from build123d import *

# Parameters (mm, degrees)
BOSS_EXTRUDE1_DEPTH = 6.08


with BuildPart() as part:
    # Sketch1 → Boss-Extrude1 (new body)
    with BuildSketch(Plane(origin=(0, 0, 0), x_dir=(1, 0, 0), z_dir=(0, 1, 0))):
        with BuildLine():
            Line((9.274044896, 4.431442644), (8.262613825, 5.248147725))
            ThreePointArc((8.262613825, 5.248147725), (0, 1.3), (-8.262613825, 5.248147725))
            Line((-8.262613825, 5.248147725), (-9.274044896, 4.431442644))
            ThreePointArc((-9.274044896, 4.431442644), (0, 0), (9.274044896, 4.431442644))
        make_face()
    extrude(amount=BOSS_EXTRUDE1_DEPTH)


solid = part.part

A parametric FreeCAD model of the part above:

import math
import FreeCAD as App
import Part
import Sketcher
from FreeCAD import Vector
Q = App.Units.Quantity

doc = App.newDocument("Part")
params = doc.addObject("Spreadsheet::Sheet", "Params")
for row, (alias, value) in enumerate([
    ("sketch1_radius", "10.62 mm"),
    ("sketch1_radius2", "11.92 mm"),
    ("pad1_length", "6.08 mm"),
], start=1):
    params.set(f"A{row}", alias)
    params.set(f"B{row}", "=" + value)
    params.setAlias(f"B{row}", alias)

body = doc.addObject("PartDesign::Body", "Body")

# Sketch on XZ plane
sketch1 = body.newObject("Sketcher::SketchObject", "Sketch")
sketch1.AttachmentSupport = (doc.getObject("XZ_Plane"), [""])
sketch1.MapMode = "FlatFace"
sketch1.addGeometry([
    Part.LineSegment(Vector(9.3, -4.4, 0), Vector(8.3, -5.2, 0)),
    Part.ArcOfCircle(Part.Circle(Vector(0, -11.9, 0), Vector(0, 0, 1), 10.6), math.radians(39), math.radians(141)),
    Part.LineSegment(Vector(-8.3, -5.2, 0), Vector(-9.3, -4.4, 0)),
    Part.ArcOfCircle(Part.Circle(Vector(0, -11.9, 0), Vector(0, 0, 1), 11.9), math.radians(39), math.radians(141)),
], False)
sketch1.addConstraint([
    Sketcher.Constraint("Coincident", 0, 2, 1, 1),
    Sketcher.Constraint("Coincident", 1, 2, 2, 1),
    Sketcher.Constraint("Coincident", 2, 2, 3, 2),
    Sketcher.Constraint("Coincident", 3, 1, 0, 1),
    Sketcher.Constraint("Coincident", 3, 3, 1, 3),
    Sketcher.Constraint("Symmetric", 0, 2, 1, 2, -2),
    Sketcher.Constraint("Horizontal", 2, 2, 3, 1),
    Sketcher.Constraint("Radius", 1, 10.62),
    Sketcher.Constraint("Radius", 3, 11.92),
    Sketcher.Constraint("Angle", 0, Q("-141.08 deg")),
    Sketcher.Constraint("DistanceY", 1, 3, -1, 1, 11.92),
    Sketcher.Constraint("DistanceX", 2, 2, 0, 2, 17.536659),
])
sketch1.setExpression("Constraints[7]", "Params.sketch1_radius")
sketch1.setExpression("Constraints[8]", "Params.sketch1_radius2")
pad1 = body.newObject("PartDesign::Pad", "Pad")
pad1.Profile = sketch1
pad1.setExpression("Length", "Params.pad1_length")
pad1.Reversed = True

doc.recompute()
